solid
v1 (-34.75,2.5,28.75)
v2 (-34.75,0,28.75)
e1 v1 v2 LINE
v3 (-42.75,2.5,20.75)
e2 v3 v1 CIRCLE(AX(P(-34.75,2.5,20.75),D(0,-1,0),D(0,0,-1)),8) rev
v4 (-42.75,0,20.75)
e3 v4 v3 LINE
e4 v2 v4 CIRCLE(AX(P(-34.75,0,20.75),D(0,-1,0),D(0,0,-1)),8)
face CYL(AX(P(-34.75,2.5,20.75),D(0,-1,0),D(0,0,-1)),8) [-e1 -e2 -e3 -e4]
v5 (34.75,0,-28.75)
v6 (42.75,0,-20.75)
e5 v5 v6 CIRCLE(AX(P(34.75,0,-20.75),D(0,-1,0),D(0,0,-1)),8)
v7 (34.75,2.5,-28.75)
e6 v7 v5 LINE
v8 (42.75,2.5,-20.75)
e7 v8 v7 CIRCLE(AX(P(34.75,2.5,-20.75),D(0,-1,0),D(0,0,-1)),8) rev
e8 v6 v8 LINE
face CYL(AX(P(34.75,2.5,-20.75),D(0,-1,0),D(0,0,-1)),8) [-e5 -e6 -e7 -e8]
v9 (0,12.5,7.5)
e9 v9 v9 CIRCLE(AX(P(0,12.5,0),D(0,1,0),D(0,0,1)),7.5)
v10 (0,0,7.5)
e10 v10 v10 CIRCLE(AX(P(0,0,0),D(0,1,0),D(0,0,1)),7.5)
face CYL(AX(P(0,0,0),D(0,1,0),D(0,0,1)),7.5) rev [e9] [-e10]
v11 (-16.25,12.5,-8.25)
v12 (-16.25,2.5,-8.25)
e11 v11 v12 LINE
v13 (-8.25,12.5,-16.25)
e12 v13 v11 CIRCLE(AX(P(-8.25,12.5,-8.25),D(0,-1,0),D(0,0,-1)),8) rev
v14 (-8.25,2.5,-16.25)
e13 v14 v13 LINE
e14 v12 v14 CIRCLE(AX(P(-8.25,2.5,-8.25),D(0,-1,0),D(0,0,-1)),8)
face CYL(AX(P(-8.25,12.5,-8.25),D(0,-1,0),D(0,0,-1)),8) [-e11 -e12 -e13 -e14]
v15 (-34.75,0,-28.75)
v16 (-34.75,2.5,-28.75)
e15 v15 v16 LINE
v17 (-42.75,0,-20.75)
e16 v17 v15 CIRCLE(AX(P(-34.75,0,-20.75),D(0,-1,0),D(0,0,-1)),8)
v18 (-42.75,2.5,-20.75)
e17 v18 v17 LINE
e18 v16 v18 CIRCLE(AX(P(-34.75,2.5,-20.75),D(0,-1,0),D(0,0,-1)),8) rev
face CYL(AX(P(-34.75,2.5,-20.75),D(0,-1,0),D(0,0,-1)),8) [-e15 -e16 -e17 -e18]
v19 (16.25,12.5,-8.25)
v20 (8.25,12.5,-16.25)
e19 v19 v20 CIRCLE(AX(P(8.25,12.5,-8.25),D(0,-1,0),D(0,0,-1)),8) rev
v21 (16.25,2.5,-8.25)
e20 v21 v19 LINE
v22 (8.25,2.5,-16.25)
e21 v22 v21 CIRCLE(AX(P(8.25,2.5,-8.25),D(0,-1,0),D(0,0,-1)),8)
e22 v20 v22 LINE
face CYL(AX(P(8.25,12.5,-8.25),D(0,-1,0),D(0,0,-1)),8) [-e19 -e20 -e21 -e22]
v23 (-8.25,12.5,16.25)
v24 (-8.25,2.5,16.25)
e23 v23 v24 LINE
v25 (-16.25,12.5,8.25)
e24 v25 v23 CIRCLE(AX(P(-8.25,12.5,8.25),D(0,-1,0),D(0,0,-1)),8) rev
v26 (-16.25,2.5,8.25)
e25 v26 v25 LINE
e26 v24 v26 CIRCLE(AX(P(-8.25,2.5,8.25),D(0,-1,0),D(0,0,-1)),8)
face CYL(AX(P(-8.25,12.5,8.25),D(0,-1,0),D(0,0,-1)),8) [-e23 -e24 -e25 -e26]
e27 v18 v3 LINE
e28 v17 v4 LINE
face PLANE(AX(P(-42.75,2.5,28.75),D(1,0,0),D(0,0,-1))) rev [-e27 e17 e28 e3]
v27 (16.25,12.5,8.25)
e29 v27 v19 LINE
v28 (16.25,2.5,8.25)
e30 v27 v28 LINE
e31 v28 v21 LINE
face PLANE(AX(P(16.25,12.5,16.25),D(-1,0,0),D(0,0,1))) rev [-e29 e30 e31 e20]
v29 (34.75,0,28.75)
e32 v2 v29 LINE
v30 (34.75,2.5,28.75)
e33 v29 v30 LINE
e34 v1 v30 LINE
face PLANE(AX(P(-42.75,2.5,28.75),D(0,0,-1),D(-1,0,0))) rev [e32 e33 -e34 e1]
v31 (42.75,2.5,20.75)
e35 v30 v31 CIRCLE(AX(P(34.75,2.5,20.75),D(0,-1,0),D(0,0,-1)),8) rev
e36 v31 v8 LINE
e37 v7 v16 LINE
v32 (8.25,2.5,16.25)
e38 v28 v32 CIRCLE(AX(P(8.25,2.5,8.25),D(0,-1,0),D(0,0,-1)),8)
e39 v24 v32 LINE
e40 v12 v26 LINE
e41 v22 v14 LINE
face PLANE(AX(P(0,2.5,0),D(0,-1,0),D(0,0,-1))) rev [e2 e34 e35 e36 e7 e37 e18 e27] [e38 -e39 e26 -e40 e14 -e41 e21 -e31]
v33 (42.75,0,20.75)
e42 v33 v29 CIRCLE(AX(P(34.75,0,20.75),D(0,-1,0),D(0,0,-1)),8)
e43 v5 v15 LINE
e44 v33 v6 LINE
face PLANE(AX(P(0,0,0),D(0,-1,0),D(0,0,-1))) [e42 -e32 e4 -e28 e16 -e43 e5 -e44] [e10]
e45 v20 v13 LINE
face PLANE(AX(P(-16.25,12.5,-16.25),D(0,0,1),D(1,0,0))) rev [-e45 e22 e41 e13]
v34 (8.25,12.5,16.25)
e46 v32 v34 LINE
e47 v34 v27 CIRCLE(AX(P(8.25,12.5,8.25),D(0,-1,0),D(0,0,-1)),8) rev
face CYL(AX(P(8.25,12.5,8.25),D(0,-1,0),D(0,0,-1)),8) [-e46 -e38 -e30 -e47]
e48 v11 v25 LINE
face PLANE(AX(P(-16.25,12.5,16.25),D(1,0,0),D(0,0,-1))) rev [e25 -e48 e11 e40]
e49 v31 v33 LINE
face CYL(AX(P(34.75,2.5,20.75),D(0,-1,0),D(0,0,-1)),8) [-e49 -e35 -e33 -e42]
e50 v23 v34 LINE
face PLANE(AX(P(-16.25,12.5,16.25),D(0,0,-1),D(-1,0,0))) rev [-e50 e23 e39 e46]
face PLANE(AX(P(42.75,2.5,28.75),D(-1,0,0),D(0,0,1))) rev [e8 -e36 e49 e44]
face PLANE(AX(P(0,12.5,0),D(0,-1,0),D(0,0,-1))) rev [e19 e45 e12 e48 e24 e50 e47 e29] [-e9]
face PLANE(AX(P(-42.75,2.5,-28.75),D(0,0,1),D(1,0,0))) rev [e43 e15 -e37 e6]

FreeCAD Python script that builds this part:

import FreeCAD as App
import Part
import Sketcher

V = App.Vector
Q = App.Units.Quantity


def edges_at(feature, points):
    """Names of the edges that pass closest to the given points."""
    edges = feature.Shape.Edges
    near = lambda p: min(range(len(edges)), key=lambda i: edges[i].distToShape(Part.Vertex(*p))[0])
    return sorted({f"Edge{near(p) + 1}" for p in points})


def add_polygon(sketch, points):
    """Adds a closed chain of lines whose ends are joined by coincident constraints."""
    first, n = sketch.GeometryCount, len(points)
    for a, b in zip(points, points[1:] + points[:1]):
        sketch.addGeometry(Part.LineSegment(App.Vector(*a, 0), App.Vector(*b, 0)), False)
    for i in range(n):
        sketch.addConstraint(Sketcher.Constraint("Coincident", first + i, 2, first + (i + 1) % n, 1))

doc = App.newDocument("Part")
body = doc.addObject("PartDesign::Body", "Body")

sketch1 = body.newObject("Sketcher::SketchObject", "Sketch")
sketch1.AttachmentSupport = (doc.getObject("XZ_Plane"), [""])
sketch1.MapMode = "FlatFace"
add_polygon(sketch1, [(-43, -29), (-43, 29), (43, 29), (43, -29)])
sketch1.addConstraint([
    Sketcher.Constraint("Vertical", 0),
    Sketcher.Constraint("Horizontal", 1),
    Sketcher.Constraint("Vertical", 2),
    Sketcher.Constraint("Horizontal", 3),
    Sketcher.Constraint("Symmetric", 0, 2, 2, 2, -1, 1),
    Sketcher.Constraint("DistanceX", 1, 1, 1, 2, Q("85.5 mm")),
    Sketcher.Constraint("DistanceY", 0, 1, 0, 2, Q("57.5 mm")),
])
pad1 = body.newObject("PartDesign::Pad", "Pad")
pad1.Profile = sketch1
pad1.Length = 2.5
pad1.Reversed = True
doc.recompute()

fillet = body.newObject("PartDesign::Fillet", "Fillet")
fillet.Base = (pad1, edges_at(pad1, [
    (42.75, 1.25, 28.75),
    (-42.75, 1.25, 28.75),
    (-42.75, 1.25, -28.75),
    (42.75, 1.25, -28.75),
]))
fillet.Radius = 8

sketch2 = body.newObject("Sketcher::SketchObject", "Sketch001")
sketch2.AttachmentSupport = (doc.getObject("XZ_Plane"), [""])
sketch2.MapMode = "FlatFace"
sketch2.AttachmentOffset = App.Placement(V(0, 0, -2.5), App.Rotation())
add_polygon(sketch2, [(-16, -16), (-16, 16), (16, 16), (16, -16)])
sketch2.addConstraint([
    Sketcher.Constraint("Vertical", 0),
    Sketcher.Constraint("Horizontal", 1),
    Sketcher.Constraint("Vertical", 2),
    Sketcher.Constraint("Horizontal", 3),
    Sketcher.Constraint("Symmetric", 0, 2, 2, 2, -1, 1),
    Sketcher.Constraint("Equal", 3, 0),
    Sketcher.Constraint("DistanceX", 1, 1, 1, 2, Q("32.5 mm")),
])
pad2 = body.newObject("PartDesign::Pad", "Pad001")
pad2.Profile = sketch2
pad2.Length = 10
pad2.Reversed = True
doc.recompute()

fillet2 = body.newObject("PartDesign::Fillet", "Fillet001")
fillet2.Base = (pad2, edges_at(pad2, [
    (16.25, 7.5, 16.25),
    (16.25, 7.5, -16.25),
    (-16.25, 7.5, -16.25),
    (-16.25, 7.5, 16.25),
]))
fillet2.Radius = 8

sketch3 = body.newObject("Sketcher::SketchObject", "Sketch002")
sketch3.AttachmentSupport = (doc.getObject("XZ_Plane"), [""])
sketch3.MapMode = "FlatFace"
sketch3.AttachmentOffset = App.Placement(V(0, 0, -12.5), App.Rotation())
sketch3.addGeometry(Part.Circle(V(0, 0, 0), V(0, 0, 1), 8), False)
sketch3.addConstraint([
    Sketcher.Constraint("Coincident", 0, 3, -1, 1),
    Sketcher.Constraint("Diameter", 0, Q("15 mm")),
])
pocket1 = body.newObject("PartDesign::Pocket", "Pocket")
pocket1.Profile = sketch3
pocket1.Type = "ThroughAll"
pocket1.Reversed = True

doc.recompute()
